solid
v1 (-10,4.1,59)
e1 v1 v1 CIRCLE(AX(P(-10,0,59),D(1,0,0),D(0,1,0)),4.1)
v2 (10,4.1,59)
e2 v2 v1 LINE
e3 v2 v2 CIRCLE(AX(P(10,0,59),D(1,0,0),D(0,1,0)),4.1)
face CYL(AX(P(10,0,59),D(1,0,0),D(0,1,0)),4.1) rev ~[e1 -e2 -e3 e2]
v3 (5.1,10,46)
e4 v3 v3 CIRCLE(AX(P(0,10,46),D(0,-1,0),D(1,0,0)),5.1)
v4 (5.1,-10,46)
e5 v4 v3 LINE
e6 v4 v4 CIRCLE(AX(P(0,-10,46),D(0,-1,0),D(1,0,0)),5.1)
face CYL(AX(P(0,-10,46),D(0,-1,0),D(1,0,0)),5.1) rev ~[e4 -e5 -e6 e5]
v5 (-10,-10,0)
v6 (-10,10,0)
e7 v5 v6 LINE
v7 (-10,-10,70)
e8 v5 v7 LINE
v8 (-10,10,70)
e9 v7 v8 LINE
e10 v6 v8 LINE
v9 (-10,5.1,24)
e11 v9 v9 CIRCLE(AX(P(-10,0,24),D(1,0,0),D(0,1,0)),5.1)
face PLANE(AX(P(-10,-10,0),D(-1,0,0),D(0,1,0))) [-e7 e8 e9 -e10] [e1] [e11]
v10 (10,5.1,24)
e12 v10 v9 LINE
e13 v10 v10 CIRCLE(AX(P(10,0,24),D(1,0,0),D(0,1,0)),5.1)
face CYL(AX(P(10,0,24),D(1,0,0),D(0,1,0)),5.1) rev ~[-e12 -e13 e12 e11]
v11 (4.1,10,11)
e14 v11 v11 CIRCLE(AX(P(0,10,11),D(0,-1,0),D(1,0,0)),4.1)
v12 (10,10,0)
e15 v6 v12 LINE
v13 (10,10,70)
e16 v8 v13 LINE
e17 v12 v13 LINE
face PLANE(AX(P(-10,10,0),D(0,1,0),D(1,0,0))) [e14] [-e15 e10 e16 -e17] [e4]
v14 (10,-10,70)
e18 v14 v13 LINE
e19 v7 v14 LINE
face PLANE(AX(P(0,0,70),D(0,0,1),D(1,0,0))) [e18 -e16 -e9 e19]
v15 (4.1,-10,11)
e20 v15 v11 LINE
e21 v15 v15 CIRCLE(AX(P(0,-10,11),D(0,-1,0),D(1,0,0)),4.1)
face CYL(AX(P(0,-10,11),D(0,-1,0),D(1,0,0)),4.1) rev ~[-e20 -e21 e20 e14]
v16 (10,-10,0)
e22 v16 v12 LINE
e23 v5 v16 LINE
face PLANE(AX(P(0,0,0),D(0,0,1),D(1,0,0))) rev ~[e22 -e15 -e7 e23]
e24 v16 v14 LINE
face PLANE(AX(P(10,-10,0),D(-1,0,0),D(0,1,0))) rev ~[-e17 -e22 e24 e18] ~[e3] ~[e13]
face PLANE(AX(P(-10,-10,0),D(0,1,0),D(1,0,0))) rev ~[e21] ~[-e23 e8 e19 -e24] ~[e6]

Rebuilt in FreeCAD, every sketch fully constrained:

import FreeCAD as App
import Part
import Sketcher

V = App.Vector

doc = App.newDocument("Part")
params = doc.addObject("Spreadsheet::Sheet", "Params")
for row, (alias, value) in enumerate([
    ("sketch1_width", "20 mm"),
    ("pad1_length", "70 mm"),
    ("sketch2_diameter", "10.2 mm"),
    ("sketch2_diameter2", "8.2 mm"),
    ("sketch3_diameter", "10.2 mm"),
    ("sketch3_diameter2", "8.2 mm"),
], start=1):
    params.set(f"A{row}", alias)
    params.set(f"B{row}", "=" + value)
    params.setAlias(f"B{row}", alias)

body = doc.addObject("PartDesign::Body", "Body")

# Sketch on XY plane
sketch1 = doc.addObject("Sketcher::SketchObject", "Sketch")
body.addObject(sketch1)
sketch1.AttachmentSupport = (doc.XY_Plane, [""])
sketch1.MapMode = "FlatFace"
sketch1.addGeometry(Part.LineSegment(V(-10, 10, 0), V(-10, -10, 0)), False)
sketch1.addGeometry(Part.LineSegment(V(-10, -10, 0), V(10, -10, 0)), False)
sketch1.addGeometry(Part.LineSegment(V(10, -10, 0), V(10, 10, 0)), False)
sketch1.addGeometry(Part.LineSegment(V(10, 10, 0), V(-10, 10, 0)), False)
sketch1.addConstraint(Sketcher.Constraint("Coincident", 0, 2, 1, 1))
sketch1.addConstraint(Sketcher.Constraint("Coincident", 1, 2, 2, 1))
sketch1.addConstraint(Sketcher.Constraint("Coincident", 2, 2, 3, 1))
sketch1.addConstraint(Sketcher.Constraint("Coincident", 3, 2, 0, 1))
sketch1.addConstraint(Sketcher.Constraint("Vertical", 0))
sketch1.addConstraint(Sketcher.Constraint("Horizontal", 1))
sketch1.addConstraint(Sketcher.Constraint("Vertical", 2))
sketch1.addConstraint(Sketcher.Constraint("Horizontal", 3))
sketch1.addConstraint(Sketcher.Constraint("Symmetric", 0, 2, 2, 2, -1, 1))
sketch1.addConstraint(Sketcher.Constraint("Equal", 3, 0))
sketch1.addConstraint(Sketcher.Constraint("DistanceX", 1, 1, 1, 2, 20.0))
sketch1.setExpression("Constraints[10]", "Params.sketch1_width")
pad1 = doc.addObject("PartDesign::Pad", "Pad")
body.addObject(pad1)
pad1.Profile = sketch1
pad1.setExpression("Length", "Params.pad1_length")

# Sketch on XZ plane
sketch2 = doc.addObject("Sketcher::SketchObject", "Sketch001")
body.addObject(sketch2)
sketch2.AttachmentSupport = (doc.XZ_Plane, [""])
sketch2.MapMode = "FlatFace"
sketch2.AttachmentOffset = App.Placement(V(0, 0, 10), App.Rotation())
sketch2.addGeometry(Part.Circle(V(0, 46, 0), V(0, 0, 1), 5.1), False)
sketch2.addGeometry(Part.Circle(V(0, 11, 0), V(0, 0, 1), 4.1), False)
sketch2.addConstraint(Sketcher.Constraint("PointOnObject", 0, 3, -2))
sketch2.addConstraint(Sketcher.Constraint("PointOnObject", 1, 3, -2))
sketch2.addConstraint(Sketcher.Constraint("Diameter", 0, 10.2))
sketch2.addConstraint(Sketcher.Constraint("Diameter", 1, 8.2))
sketch2.addConstraint(Sketcher.Constraint("DistanceY", -1, 1, 0, 3, 46.0))
sketch2.addConstraint(Sketcher.Constraint("DistanceY", -1, 1, 1, 3, 11.0))
sketch2.setExpression("Constraints[2]", "Params.sketch2_diameter")
sketch2.setExpression("Constraints[3]", "Params.sketch2_diameter2")
pocket1 = doc.addObject("PartDesign::Pocket", "Pocket")
body.addObject(pocket1)
pocket1.Profile = sketch2
pocket1.Type = "ThroughAll"

# Sketch on YZ plane
sketch3 = doc.addObject("Sketcher::SketchObject", "Sketch002")
body.addObject(sketch3)
sketch3.AttachmentSupport = (doc.YZ_Plane, [""])
sketch3.MapMode = "FlatFace"
sketch3.AttachmentOffset = App.Placement(V(0, 0, 10), App.Rotation())
sketch3.addGeometry(Part.Circle(V(0, 24, 0), V(0, 0, 1), 5.1), False)
sketch3.addGeometry(Part.Circle(V(0, 59, 0), V(0, 0, 1), 4.1), False)
sketch3.addConstraint(Sketcher.Constraint("PointOnObject", 0, 3, -2))
sketch3.addConstraint(Sketcher.Constraint("PointOnObject", 1, 3, -2))
sketch3.addConstraint(Sketcher.Constraint("Diameter", 0, 10.2))
sketch3.addConstraint(Sketcher.Constraint("Diameter", 1, 8.2))
sketch3.addConstraint(Sketcher.Constraint("DistanceY", -1, 1, 0, 3, 24.0))
sketch3.addConstraint(Sketcher.Constraint("DistanceY", -1, 1, 1, 3, 59.0))
sketch3.setExpression("Constraints[2]", "Params.sketch3_diameter")
sketch3.setExpression("Constraints[3]", "Params.sketch3_diameter2")
pocket2 = doc.addObject("PartDesign::Pocket", "Pocket001")
body.addObject(pocket2)
pocket2.Profile = sketch3
pocket2.Type = "ThroughAll"

doc.recompute()
